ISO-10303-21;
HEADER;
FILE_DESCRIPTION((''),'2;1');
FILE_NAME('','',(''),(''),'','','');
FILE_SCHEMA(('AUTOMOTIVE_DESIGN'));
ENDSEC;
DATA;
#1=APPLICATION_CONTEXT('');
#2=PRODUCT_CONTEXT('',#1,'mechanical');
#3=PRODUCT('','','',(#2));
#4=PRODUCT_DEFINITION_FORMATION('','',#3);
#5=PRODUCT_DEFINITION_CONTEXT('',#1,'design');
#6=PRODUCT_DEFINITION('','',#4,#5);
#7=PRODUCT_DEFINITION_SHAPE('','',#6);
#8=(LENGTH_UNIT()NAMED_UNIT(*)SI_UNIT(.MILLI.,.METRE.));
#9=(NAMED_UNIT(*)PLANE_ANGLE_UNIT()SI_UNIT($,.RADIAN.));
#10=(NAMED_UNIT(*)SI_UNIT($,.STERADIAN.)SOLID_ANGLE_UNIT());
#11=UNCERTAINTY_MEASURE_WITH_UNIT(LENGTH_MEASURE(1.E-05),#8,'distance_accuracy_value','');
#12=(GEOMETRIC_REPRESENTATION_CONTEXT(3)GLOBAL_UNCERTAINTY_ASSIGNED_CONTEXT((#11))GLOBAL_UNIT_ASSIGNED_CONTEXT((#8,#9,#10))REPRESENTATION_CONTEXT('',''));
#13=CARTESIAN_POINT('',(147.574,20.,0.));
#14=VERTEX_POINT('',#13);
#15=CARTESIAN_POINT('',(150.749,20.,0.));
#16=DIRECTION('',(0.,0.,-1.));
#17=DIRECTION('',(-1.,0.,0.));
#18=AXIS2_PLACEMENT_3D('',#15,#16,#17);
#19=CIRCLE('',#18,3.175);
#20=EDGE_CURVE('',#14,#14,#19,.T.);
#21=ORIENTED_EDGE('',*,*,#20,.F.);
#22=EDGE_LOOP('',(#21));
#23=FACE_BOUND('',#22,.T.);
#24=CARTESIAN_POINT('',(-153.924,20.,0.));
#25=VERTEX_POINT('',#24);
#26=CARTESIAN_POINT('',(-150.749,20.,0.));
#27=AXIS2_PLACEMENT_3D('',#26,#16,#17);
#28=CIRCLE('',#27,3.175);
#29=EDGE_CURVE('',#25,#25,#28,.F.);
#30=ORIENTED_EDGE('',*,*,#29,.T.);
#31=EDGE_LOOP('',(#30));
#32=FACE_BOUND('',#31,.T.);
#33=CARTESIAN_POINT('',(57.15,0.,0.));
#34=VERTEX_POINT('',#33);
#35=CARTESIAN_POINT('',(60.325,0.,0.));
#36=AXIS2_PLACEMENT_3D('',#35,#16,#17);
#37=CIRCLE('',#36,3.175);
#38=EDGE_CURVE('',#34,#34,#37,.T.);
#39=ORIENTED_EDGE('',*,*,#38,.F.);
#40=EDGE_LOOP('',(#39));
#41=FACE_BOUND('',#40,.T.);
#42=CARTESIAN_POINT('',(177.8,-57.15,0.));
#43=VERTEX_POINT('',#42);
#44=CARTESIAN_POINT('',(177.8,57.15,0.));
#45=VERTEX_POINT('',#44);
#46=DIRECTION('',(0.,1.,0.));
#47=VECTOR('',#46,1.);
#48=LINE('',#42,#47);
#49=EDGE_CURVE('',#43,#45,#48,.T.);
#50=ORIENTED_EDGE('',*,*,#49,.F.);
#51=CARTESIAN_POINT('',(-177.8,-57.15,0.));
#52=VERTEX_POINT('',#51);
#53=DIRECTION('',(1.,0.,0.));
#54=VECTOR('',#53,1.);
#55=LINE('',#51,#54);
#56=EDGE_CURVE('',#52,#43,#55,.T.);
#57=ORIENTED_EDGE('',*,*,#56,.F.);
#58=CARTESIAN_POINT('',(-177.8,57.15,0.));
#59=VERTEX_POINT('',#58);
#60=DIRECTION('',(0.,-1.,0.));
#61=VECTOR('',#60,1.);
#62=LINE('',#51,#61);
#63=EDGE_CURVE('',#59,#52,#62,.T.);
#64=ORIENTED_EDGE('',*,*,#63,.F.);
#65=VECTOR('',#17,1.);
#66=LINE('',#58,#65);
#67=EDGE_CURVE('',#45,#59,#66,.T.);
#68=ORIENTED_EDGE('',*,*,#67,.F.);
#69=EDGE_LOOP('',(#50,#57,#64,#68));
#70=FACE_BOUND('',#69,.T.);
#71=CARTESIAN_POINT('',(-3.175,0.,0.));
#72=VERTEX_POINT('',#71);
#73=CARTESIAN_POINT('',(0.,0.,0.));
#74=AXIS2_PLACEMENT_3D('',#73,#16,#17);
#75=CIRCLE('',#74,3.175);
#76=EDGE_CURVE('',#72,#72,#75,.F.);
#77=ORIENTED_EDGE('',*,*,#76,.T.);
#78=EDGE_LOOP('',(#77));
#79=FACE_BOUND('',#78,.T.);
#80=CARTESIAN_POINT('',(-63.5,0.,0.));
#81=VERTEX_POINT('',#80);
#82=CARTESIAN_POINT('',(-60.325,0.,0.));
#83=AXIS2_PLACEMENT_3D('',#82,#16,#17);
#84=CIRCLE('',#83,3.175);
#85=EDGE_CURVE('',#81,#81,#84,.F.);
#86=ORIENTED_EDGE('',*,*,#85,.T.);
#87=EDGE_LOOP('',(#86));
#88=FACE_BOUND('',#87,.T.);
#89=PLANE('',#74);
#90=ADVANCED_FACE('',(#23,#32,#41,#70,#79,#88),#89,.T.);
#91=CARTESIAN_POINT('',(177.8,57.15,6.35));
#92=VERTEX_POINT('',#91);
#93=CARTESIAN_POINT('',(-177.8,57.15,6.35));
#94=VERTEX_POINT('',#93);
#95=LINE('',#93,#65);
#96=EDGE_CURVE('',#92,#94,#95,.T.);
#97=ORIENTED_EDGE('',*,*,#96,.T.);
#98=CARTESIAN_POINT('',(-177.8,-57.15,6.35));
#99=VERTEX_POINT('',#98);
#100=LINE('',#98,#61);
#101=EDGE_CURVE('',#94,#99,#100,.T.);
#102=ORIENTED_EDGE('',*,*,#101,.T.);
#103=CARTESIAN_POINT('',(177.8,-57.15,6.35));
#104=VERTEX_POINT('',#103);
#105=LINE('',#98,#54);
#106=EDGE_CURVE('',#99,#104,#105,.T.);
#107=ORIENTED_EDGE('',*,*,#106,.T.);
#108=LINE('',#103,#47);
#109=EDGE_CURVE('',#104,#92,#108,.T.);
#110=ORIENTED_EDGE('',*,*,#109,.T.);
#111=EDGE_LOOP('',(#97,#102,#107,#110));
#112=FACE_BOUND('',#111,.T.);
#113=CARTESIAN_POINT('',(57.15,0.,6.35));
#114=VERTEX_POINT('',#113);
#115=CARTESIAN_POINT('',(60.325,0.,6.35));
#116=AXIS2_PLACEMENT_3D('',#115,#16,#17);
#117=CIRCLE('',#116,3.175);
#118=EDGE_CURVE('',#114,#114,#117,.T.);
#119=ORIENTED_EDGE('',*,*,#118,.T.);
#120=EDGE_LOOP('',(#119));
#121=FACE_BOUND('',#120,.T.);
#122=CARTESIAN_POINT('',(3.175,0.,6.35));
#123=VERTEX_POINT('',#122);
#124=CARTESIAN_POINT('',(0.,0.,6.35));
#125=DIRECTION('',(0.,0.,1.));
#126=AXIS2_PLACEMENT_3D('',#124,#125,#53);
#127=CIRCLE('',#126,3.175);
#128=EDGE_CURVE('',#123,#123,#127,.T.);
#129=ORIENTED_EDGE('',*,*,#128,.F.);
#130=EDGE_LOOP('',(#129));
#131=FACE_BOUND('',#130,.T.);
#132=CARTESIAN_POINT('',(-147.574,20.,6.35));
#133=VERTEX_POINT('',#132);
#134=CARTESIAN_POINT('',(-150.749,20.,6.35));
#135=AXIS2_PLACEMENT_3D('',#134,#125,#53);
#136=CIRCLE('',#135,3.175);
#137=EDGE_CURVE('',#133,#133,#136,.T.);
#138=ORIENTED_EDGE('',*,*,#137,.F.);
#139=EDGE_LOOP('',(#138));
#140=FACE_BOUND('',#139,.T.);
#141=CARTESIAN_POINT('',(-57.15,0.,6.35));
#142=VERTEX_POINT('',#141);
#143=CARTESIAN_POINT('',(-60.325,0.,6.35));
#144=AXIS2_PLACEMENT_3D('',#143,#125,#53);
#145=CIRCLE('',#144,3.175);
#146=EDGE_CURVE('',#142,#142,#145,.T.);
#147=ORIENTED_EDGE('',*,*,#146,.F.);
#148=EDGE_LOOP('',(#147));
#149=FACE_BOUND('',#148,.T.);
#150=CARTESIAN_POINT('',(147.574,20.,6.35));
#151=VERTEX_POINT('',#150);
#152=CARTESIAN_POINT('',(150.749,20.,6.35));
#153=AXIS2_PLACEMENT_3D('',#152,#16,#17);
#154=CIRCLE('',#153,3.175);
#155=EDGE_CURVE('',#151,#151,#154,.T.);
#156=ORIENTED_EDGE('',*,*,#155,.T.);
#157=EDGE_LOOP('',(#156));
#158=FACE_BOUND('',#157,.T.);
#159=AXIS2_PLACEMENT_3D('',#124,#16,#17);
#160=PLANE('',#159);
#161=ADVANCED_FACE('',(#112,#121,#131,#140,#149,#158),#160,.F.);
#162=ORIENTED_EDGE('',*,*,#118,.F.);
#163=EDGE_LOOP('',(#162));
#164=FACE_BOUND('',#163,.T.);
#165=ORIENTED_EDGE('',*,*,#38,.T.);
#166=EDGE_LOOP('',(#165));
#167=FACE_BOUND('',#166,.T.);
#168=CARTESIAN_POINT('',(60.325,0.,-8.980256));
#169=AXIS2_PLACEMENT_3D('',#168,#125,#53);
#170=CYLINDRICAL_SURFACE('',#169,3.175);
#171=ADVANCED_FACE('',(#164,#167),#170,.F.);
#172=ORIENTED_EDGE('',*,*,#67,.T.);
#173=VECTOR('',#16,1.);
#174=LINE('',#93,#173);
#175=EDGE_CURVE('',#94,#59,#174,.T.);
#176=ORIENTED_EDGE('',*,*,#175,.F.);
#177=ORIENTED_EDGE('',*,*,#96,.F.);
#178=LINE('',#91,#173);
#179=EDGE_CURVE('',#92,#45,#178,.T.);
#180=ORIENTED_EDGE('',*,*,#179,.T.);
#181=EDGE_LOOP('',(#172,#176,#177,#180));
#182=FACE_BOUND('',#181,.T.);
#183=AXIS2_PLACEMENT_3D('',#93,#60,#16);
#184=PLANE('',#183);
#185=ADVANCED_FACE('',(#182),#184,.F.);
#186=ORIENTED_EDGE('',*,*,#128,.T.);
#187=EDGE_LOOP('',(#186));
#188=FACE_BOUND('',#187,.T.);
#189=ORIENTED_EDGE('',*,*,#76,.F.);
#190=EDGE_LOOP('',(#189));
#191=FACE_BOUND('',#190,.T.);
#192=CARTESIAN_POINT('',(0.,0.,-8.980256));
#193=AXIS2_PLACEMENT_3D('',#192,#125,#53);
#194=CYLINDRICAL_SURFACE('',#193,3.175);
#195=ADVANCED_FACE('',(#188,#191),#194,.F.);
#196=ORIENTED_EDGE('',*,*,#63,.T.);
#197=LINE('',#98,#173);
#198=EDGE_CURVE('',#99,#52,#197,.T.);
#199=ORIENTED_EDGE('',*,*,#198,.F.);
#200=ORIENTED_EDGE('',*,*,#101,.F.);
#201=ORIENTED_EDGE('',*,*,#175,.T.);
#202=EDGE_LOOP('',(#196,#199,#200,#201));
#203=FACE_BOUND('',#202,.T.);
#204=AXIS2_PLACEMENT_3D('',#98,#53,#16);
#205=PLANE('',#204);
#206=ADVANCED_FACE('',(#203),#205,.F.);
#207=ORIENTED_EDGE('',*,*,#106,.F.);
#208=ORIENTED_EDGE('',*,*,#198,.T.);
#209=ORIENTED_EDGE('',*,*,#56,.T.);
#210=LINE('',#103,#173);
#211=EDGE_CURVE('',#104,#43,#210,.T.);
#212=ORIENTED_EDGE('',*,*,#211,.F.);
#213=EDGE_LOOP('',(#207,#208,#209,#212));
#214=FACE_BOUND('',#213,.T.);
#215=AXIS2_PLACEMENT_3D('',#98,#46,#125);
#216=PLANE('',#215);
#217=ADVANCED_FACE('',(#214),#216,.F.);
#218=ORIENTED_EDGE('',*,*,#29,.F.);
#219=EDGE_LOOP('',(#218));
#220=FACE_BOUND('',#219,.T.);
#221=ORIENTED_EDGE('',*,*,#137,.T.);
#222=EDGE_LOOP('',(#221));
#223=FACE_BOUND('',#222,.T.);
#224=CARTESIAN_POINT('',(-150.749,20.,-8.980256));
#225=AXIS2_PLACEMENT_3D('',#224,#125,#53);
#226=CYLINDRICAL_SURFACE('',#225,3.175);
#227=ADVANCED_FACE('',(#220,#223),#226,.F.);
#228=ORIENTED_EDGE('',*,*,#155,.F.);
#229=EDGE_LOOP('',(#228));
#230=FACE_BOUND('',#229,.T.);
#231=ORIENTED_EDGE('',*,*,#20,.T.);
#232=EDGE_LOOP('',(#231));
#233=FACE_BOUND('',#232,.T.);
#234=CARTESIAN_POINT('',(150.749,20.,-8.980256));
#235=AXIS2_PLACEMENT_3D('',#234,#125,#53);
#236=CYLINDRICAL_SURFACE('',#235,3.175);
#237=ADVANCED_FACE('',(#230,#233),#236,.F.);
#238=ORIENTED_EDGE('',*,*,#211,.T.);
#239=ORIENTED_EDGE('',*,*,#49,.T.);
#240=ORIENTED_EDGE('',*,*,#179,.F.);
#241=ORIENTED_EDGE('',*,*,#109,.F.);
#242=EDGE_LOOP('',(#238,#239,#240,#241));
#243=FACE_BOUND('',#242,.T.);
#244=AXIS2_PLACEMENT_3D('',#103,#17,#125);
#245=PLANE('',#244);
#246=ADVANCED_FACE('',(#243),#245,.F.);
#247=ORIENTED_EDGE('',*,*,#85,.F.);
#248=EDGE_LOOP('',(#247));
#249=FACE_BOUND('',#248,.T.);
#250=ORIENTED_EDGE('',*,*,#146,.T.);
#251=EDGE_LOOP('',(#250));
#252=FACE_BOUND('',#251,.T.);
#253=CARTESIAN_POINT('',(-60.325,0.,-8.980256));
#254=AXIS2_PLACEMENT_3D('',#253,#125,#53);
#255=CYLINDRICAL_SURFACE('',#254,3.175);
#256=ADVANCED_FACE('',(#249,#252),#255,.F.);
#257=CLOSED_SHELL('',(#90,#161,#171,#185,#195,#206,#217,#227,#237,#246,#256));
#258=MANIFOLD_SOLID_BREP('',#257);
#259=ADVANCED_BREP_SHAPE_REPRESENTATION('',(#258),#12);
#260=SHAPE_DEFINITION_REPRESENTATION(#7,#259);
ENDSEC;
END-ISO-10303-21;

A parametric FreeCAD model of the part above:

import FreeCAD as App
import Part
import Sketcher
from FreeCAD import Vector
Q = App.Units.Quantity

doc = App.newDocument("Part")
body = doc.addObject("PartDesign::Body", "Body")

# Sketch on XY plane
sketch1 = body.newObject("Sketcher::SketchObject", "Sketch")
sketch1.AttachmentSupport = (doc.getObject("XY_Plane"), [""])
sketch1.MapMode = "FlatFace"
sketch1.addGeometry([
    Part.LineSegment(Vector(-178, 57, 0), Vector(-178, -57, 0)),
    Part.LineSegment(Vector(-178, -57, 0), Vector(178, -57, 0)),
    Part.LineSegment(Vector(178, -57, 0), Vector(178, 57, 0)),
    Part.LineSegment(Vector(178, 57, 0), Vector(-178, 57, 0)),
], False)
sketch1.addConstraint([
    Sketcher.Constraint("Coincident", 0, 2, 1, 1),
    Sketcher.Constraint("Coincident", 1, 2, 2, 1),
    Sketcher.Constraint("Coincident", 2, 2, 3, 1),
    Sketcher.Constraint("Coincident", 3, 2, 0, 1),
    Sketcher.Constraint("Vertical", 0),
    Sketcher.Constraint("Horizontal", 1),
    Sketcher.Constraint("Vertical", 2),
    Sketcher.Constraint("Horizontal", 3),
    Sketcher.Constraint("Symmetric", 0, 2, 2, 2, -1, 1),
    Sketcher.Constraint("DistanceX", 1, 1, 1, 2, Q("14 in")),
    Sketcher.Constraint("DistanceY", 0, 2, 0, 1, Q("4.5 in")),
])
pad1 = body.newObject("PartDesign::Pad", "Pad")
pad1.Profile = sketch1
pad1.Length = Q("0.25 in")

# Sketch on XY plane
sketch2 = body.newObject("Sketcher::SketchObject", "Sketch001")
sketch2.AttachmentSupport = (doc.getObject("XY_Plane"), [""])
sketch2.MapMode = "FlatFace"
sketch2.AttachmentOffset = App.Placement(Vector(0, 0, 0.25 * 25.4), App.Rotation())
sketch2.addGeometry([
    Part.Circle(Vector(-60.3, 0, 0), Vector(0, 0, 1), 3.2),
    Part.Circle(Vector(0, 0, 0), Vector(0, 0, 1), 3.2),
    Part.Circle(Vector(-150.7, 20, 0), Vector(0, 0, 1), 3.2),
], False)
sketch2.addConstraint([
    Sketcher.Constraint("Coincident", 1, 3, -1, 1),
    Sketcher.Constraint("Equal", 0, 1),
    Sketcher.Constraint("Equal", 1, 2),
    Sketcher.Constraint("PointOnObject", 0, 3, -1),
    Sketcher.Constraint("Diameter", 0, Q("0.25 in")),
    Sketcher.Constraint("DistanceX", 2, 3, 0, 3, Q("3.56 in")),
    Sketcher.Constraint("DistanceX", 0, 3, -1, 1, Q("2.375 in")),
    Sketcher.Constraint("DistanceY", -1, 1, 2, 3, 20.0),
])
pocket1 = body.newObject("PartDesign::Pocket", "Pocket")
pocket1.Profile = sketch2
pocket1.Length = Q("0.25 in")
doc.recompute()

mirrored = body.newObject("PartDesign::Mirrored", "Mirrored")
mirrored.Originals = [pocket1]
mirrored.MirrorPlane = (doc.getObject("YZ_Plane"), [""])
body.Tip = mirrored

doc.recompute()
